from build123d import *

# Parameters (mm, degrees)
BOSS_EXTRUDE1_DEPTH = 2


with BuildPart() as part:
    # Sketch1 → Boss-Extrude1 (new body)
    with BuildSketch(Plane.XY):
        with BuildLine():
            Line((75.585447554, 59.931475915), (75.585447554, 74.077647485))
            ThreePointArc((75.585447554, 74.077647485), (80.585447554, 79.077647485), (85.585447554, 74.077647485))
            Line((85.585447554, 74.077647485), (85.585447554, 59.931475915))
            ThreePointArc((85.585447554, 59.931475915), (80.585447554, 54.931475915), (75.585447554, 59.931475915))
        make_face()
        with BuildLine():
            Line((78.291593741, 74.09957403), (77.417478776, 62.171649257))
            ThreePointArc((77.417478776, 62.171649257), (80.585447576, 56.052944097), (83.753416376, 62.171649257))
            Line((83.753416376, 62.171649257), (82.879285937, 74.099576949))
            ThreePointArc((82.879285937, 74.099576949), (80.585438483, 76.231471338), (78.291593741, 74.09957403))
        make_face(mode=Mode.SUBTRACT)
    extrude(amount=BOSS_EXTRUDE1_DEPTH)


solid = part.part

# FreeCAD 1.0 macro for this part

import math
import FreeCAD as App
import Part
import Sketcher

doc = App.newDocument("Part")
body = doc.addObject("PartDesign::Body", "Body")

# Sketch on XY plane
sketch1 = doc.addObject("Sketcher::SketchObject", "Sketch")
body.addObject(sketch1)
sketch1.AttachmentSupport = (doc.XY_Plane, [""])
sketch1.MapMode = "FlatFace"
sketch1.addGeometry([
    Part.LineSegment(App.Vector(75.6, 74.1, 0), App.Vector(75.6, 59.9, 0)),  # 0
    Part.ArcOfCircle(Part.Circle(App.Vector(80.6, 59.9, 0), App.Vector(0, 0, 1), 5), math.radians(180), math.radians(360)),  # 1
    Part.LineSegment(App.Vector(85.6, 59.9, 0), App.Vector(85.6, 74.1, 0)),  # 2
    Part.ArcOfCircle(Part.Circle(App.Vector(80.6, 74.1, 0), App.Vector(0, 0, 1), 5), math.radians(0), math.radians(180)),  # 3
    Part.ArcOfCircle(Part.Circle(App.Vector(80.6, 73.9, 0), App.Vector(0, 0, 1), 2.3), math.radians(4), math.radians(176)),  # 4
    Part.LineSegment(App.Vector(82.9, 74.1, 0), App.Vector(83.8, 62.2, 0)),  # 5
    Part.ArcOfCircle(Part.Circle(App.Vector(80.6, 59.9, 0), App.Vector(0, 0, 1), 3.9), math.radians(145), math.radians(395)),  # 6
    Part.LineSegment(App.Vector(77.4, 62.2, 0), App.Vector(78.3, 74.1, 0)),  # 7
], False)
sketch1.addConstraint([
    Sketcher.Constraint("Tangent", 0, 2, 1, 1),
    Sketcher.Constraint("Tangent", 1, 2, 2, 1),
    Sketcher.Constraint("Tangent", 2, 2, 3, 1),
    Sketcher.Constraint("Tangent", 3, 2, 0, 1),
    Sketcher.Constraint("Tangent", 4, 1, 5, 1),
    Sketcher.Constraint("Coincident", 5, 2, 6, 2),
    Sketcher.Constraint("Coincident", 6, 1, 7, 1),
    Sketcher.Constraint("Tangent", 7, 2, 4, 2),
    Sketcher.Constraint("Vertical", 0),
    Sketcher.Constraint("Vertical", 2),
    Sketcher.Constraint("Horizontal", 5, 2, 6, 1),
    Sketcher.Constraint("Vertical", 3, 3, 6, 3),
    Sketcher.Constraint("Radius", 1, 5.0),
    Sketcher.Constraint("DistanceY", 1, 3, 4, 3, 13.999998),
    Sketcher.Constraint("Radius", 4, 2.299997),
    Sketcher.Constraint("Radius", 6, 3.879463),
    Sketcher.Constraint("DistanceY", 0, 2, 0, 1, 14.146172),
    Sketcher.Constraint("DistanceY", 4, 3, 7, 2, 0.1681),
    Sketcher.Constraint("Distance", 7, 11.959911),
    Sketcher.Constraint("DistanceX", -1, 1, 4, 3, 80.58544),
    Sketcher.Constraint("DistanceY", -1, 1, 5, 2, 62.171649),
    Sketcher.Constraint("DistanceY", 1, 3, 6, 3, 0.000931),
])
pad1 = doc.addObject("PartDesign::Pad", "Pad")
body.addObject(pad1)
pad1.Profile = sketch1
pad1.Length = 2

doc.recompute()
